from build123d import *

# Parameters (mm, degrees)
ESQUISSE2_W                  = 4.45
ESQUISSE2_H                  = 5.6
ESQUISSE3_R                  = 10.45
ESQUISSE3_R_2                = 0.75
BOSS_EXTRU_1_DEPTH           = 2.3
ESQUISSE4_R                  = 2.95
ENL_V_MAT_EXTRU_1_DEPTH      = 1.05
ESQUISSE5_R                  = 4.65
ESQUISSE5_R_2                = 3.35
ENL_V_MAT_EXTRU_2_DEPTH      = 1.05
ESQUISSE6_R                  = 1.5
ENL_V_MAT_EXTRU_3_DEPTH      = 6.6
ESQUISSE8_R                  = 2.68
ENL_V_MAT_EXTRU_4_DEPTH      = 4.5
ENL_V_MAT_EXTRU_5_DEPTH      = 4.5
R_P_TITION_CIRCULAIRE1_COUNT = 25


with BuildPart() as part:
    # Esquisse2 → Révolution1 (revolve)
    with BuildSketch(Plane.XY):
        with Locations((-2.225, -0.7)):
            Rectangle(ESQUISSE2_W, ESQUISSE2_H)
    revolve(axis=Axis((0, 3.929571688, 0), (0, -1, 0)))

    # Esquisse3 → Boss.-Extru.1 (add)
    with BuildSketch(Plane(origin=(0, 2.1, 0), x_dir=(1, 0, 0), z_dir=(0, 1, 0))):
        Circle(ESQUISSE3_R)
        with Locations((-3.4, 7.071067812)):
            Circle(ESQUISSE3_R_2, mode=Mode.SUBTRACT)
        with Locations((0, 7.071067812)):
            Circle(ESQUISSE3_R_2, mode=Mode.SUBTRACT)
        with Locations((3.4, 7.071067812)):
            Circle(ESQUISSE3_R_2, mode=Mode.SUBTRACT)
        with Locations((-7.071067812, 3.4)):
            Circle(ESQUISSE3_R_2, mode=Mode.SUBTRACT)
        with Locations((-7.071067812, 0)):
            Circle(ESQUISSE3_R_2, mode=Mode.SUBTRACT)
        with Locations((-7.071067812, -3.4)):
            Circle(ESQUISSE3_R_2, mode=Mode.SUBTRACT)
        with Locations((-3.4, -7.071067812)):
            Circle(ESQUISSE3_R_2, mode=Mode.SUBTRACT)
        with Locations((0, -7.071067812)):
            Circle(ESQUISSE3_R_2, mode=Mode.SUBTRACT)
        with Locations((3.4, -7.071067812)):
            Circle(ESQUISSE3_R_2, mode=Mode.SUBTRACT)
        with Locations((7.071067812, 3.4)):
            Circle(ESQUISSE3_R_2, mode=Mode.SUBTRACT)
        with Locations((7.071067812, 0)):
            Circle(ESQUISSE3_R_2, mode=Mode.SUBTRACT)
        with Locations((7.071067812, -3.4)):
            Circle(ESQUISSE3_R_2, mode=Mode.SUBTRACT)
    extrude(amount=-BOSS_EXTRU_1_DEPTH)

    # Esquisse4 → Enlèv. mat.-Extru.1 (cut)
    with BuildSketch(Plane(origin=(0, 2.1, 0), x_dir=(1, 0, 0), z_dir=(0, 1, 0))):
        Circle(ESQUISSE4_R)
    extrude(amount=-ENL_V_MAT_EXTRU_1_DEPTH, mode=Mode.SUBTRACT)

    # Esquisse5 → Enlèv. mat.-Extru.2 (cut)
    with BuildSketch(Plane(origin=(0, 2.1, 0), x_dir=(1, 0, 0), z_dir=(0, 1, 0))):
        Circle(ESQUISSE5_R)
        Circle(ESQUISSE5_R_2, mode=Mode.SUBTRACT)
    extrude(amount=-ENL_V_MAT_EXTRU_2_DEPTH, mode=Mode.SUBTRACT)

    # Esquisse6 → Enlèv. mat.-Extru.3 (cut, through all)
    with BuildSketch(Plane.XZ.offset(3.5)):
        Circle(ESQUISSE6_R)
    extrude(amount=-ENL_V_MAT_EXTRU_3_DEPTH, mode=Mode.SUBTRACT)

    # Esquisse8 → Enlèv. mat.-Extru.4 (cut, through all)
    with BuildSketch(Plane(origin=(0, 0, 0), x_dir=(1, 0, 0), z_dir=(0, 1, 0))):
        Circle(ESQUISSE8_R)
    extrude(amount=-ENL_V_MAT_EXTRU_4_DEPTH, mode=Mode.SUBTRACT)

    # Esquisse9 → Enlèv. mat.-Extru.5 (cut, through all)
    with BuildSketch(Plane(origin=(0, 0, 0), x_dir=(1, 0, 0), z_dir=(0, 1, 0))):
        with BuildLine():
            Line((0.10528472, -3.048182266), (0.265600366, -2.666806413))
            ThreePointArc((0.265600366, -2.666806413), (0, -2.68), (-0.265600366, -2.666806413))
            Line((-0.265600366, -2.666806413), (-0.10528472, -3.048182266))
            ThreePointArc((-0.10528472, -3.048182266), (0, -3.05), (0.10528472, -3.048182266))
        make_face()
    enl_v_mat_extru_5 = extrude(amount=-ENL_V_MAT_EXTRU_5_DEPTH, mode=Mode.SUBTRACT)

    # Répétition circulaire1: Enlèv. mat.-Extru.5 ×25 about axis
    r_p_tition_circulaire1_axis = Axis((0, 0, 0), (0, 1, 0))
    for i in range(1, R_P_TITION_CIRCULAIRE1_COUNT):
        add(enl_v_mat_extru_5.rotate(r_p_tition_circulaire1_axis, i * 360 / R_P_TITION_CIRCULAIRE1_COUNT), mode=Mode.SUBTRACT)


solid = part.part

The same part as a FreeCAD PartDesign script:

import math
import FreeCAD as App
import Part
import Sketcher
Q = App.Units.Quantity

doc = App.newDocument("Part")
body = doc.addObject("PartDesign::Body", "Body")

sketch1 = body.newObject("Sketcher::SketchObject", "Sketch")
sketch1.AttachmentSupport = (doc.getObject("XY_Plane"), [""])
sketch1.MapMode = "FlatFace"
sketch1.addGeometry([
    Part.LineSegment(App.Vector(-4.45, 2.1, 0), App.Vector(-4.45, -3.5, 0)),
    Part.LineSegment(App.Vector(-4.45, -3.5, 0), App.Vector(0, -3.5, 0)),
    Part.LineSegment(App.Vector(0, -3.5, 0), App.Vector(0, 2.1, 0)),
    Part.LineSegment(App.Vector(0, 2.1, 0), App.Vector(-4.45, 2.1, 0)),
], False)
sketch1.addConstraint([
    Sketcher.Constraint("Coincident", 0, 2, 1, 1),
    Sketcher.Constraint("Coincident", 1, 2, 2, 1),
    Sketcher.Constraint("Coincident", 2, 2, 3, 1),
    Sketcher.Constraint("Coincident", 3, 2, 0, 1),
    Sketcher.Constraint("Vertical", 0),
    Sketcher.Constraint("Horizontal", 1),
    Sketcher.Constraint("Vertical", 2),
    Sketcher.Constraint("Horizontal", 3),
    Sketcher.Constraint("PointOnObject", 1, 2, -2),
    Sketcher.Constraint("DistanceY", 0, 2, 0, 1, 5.6),
    Sketcher.Constraint("DistanceX", 1, 1, 1, 2, 4.45),
    Sketcher.Constraint("DistanceY", 0, 2, -1, 1, 3.5),
])
revolution = body.newObject("PartDesign::Revolution", "Revolution")
revolution.Profile = sketch1
revolution.ReferenceAxis = (sketch1, ["V_Axis"])
revolution.Angle = 360

sketch2 = body.newObject("Sketcher::SketchObject", "Sketch001")
sketch2.AttachmentSupport = (doc.getObject("XZ_Plane"), [""])
sketch2.MapMode = "FlatFace"
sketch2.AttachmentOffset = App.Placement(App.Vector(0, 0, -2.1), App.Rotation())
sketch2.addGeometry([
    Part.Circle(App.Vector(0, 0, 0), App.Vector(0, 0, 1), 10.45),
    Part.Circle(App.Vector(-3.4, 7.071068, 0), App.Vector(0, 0, 1), 0.75),
    Part.Circle(App.Vector(-7.071068, 3.4, 0), App.Vector(0, 0, 1), 0.75),
    Part.Circle(App.Vector(0, 7.071068, 0), App.Vector(0, 0, 1), 0.75),
    Part.Circle(App.Vector(3.4, 7.071068, 0), App.Vector(0, 0, 1), 0.75),
    Part.Circle(App.Vector(7.071068, 3.4, 0), App.Vector(0, 0, 1), 0.75),
    Part.Circle(App.Vector(-7.071068, 0, 0), App.Vector(0, 0, 1), 0.75),
    Part.Circle(App.Vector(-7.071068, -3.4, 0), App.Vector(0, 0, 1), 0.75),
    Part.Circle(App.Vector(-3.4, -7.071068, 0), App.Vector(0, 0, 1), 0.75),
    Part.Circle(App.Vector(7.071068, 0, 0), App.Vector(0, 0, 1), 0.75),
    Part.Circle(App.Vector(7.071068, -3.4, 0), App.Vector(0, 0, 1), 0.75),
    Part.Circle(App.Vector(0, -7.071068, 0), App.Vector(0, 0, 1), 0.75),
    Part.Circle(App.Vector(3.4, -7.071068, 0), App.Vector(0, 0, 1), 0.75),
], False)
sketch2.addConstraint([
    Sketcher.Constraint("Coincident", 0, 3, -1, 1),
    Sketcher.Constraint("Equal", 1, 2),
    Sketcher.Constraint("Equal", 2, 3),
    Sketcher.Constraint("Equal", 3, 4),
    Sketcher.Constraint("Equal", 4, 5),
    Sketcher.Constraint("Equal", 5, 6),
    Sketcher.Constraint("Equal", 6, 7),
    Sketcher.Constraint("Equal", 7, 8),
    Sketcher.Constraint("Equal", 8, 9),
    Sketcher.Constraint("Equal", 9, 10),
    Sketcher.Constraint("Equal", 10, 11),
    Sketcher.Constraint("Equal", 11, 12),
    Sketcher.Constraint("Symmetric", 5, 3, 7, 3, -1, 1),
    Sketcher.Constraint("Symmetric", 4, 3, 8, 3, -1, 1),
    Sketcher.Constraint("Symmetric", 6, 3, 9, 3, -1, 1),
    Sketcher.Constraint("Symmetric", 2, 3, 10, 3, -1, 1),
    Sketcher.Constraint("Symmetric", 3, 3, 11, 3, -1, 1),
    Sketcher.Constraint("Symmetric", 1, 3, 12, 3, -1, 1),
    Sketcher.Constraint("Symmetric", 1, 3, 4, 3, -2),
    Sketcher.Constraint("Symmetric", 2, 3, 5, 3, -2),
    Sketcher.Constraint("PointOnObject", 3, 3, -2),
    Sketcher.Constraint("PointOnObject", 6, 3, -1),
    Sketcher.Constraint("Horizontal", 1, 3, 3, 3),
    Sketcher.Constraint("Vertical", 2, 3, 6, 3),
    Sketcher.Constraint("Diameter", 0, 20.9),
    Sketcher.Constraint("Diameter", 1, 1.5),
    Sketcher.Constraint("DistanceX", 1, 3, -1, 1, 3.4),
    Sketcher.Constraint("DistanceY", -1, 1, 2, 3, 3.4),
    Sketcher.Constraint("DistanceY", -1, 1, 1, 3, 7.071068),
    Sketcher.Constraint("DistanceX", 2, 3, -1, 1, 7.071068),
])
pad1 = body.newObject("PartDesign::Pad", "Pad")
pad1.Profile = sketch2
pad1.Length = 2.3

sketch3 = body.newObject("Sketcher::SketchObject", "Sketch002")
sketch3.AttachmentSupport = (doc.getObject("XZ_Plane"), [""])
sketch3.MapMode = "FlatFace"
sketch3.AttachmentOffset = App.Placement(App.Vector(0, 0, -2.1), App.Rotation())
sketch3.addGeometry(Part.Circle(App.Vector(0, 0, 0), App.Vector(0, 0, 1), 2.95), False)
sketch3.addConstraint([
    Sketcher.Constraint("Coincident", 0, 3, -1, 1),
    Sketcher.Constraint("Diameter", 0, 5.9),
])
pocket1 = body.newObject("PartDesign::Pocket", "Pocket")
pocket1.Profile = sketch3
pocket1.Length = 1.05
pocket1.Reversed = True

sketch4 = body.newObject("Sketcher::SketchObject", "Sketch003")
sketch4.AttachmentSupport = (doc.getObject("XZ_Plane"), [""])
sketch4.MapMode = "FlatFace"
sketch4.AttachmentOffset = App.Placement(App.Vector(0, 0, -2.1), App.Rotation())
sketch4.addGeometry([
    Part.Circle(App.Vector(0, 0, 0), App.Vector(0, 0, 1), 4.65),
    Part.Circle(App.Vector(0, 0, 0), App.Vector(0, 0, 1), 3.35),
], False)
sketch4.addConstraint([
    Sketcher.Constraint("Coincident", 0, 3, -1, 1),
    Sketcher.Constraint("Coincident", 1, 3, -1, 1),
    Sketcher.Constraint("Diameter", 0, 9.3),
    Sketcher.Constraint("Diameter", 1, 6.7),
])
pocket2 = body.newObject("PartDesign::Pocket", "Pocket001")
pocket2.Profile = sketch4
pocket2.Length = 1.05
pocket2.Reversed = True

sketch5 = body.newObject("Sketcher::SketchObject", "Sketch004")
sketch5.AttachmentSupport = (doc.getObject("XZ_Plane"), [""])
sketch5.MapMode = "FlatFace"
sketch5.AttachmentOffset = App.Placement(App.Vector(0, 0, 3.5), App.Rotation())
sketch5.addGeometry(Part.Circle(App.Vector(0, 0, 0), App.Vector(0, 0, 1), 1.5), False)
sketch5.addConstraint([
    Sketcher.Constraint("Coincident", 0, 3, -1, 1),
    Sketcher.Constraint("Diameter", 0, 3.0),
])
pocket3 = body.newObject("PartDesign::Pocket", "Pocket002")
pocket3.Profile = sketch5
pocket3.Type = "ThroughAll"

sketch6 = body.newObject("Sketcher::SketchObject", "Sketch005")
sketch6.AttachmentSupport = (doc.getObject("XZ_Plane"), [""])
sketch6.MapMode = "FlatFace"
sketch6.addGeometry(Part.Circle(App.Vector(0, 0, 0), App.Vector(0, 0, 1), 2.68), False)
sketch6.addConstraint([
    Sketcher.Constraint("Coincident", 0, 3, -1, 1),
    Sketcher.Constraint("Diameter", 0, 5.36),
])
pocket4 = body.newObject("PartDesign::Pocket", "Pocket003")
pocket4.Profile = sketch6
pocket4.Type = "ThroughAll"
pocket4.Reversed = True

sketch7 = body.newObject("Sketcher::SketchObject", "Sketch006")
sketch7.AttachmentSupport = (doc.getObject("XZ_Plane"), [""])
sketch7.MapMode = "FlatFace"
sketch7.addGeometry([
    Part.LineSegment(App.Vector(0.105285, 3.048182, 0), App.Vector(0.2656, 2.666806, 0)),
    Part.ArcOfCircle(Part.Circle(App.Vector(0, 0, 0), App.Vector(0, 0, 1), 2.68), math.radians(84.312387), math.radians(95.687613)),
    Part.LineSegment(App.Vector(-0.2656, 2.666806, 0), App.Vector(-0.105285, 3.048182, 0)),
    Part.ArcOfCircle(Part.Circle(App.Vector(0, 0, 0), App.Vector(0, 0, 1), 3.05), math.radians(88.021781), math.radians(91.978219)),
], False)
sketch7.addConstraint([
    Sketcher.Constraint("Coincident", 0, 2, 1, 1),
    Sketcher.Constraint("Coincident", 1, 2, 2, 1),
    Sketcher.Constraint("Coincident", 2, 2, 3, 2),
    Sketcher.Constraint("Coincident", 3, 1, 0, 1),
    Sketcher.Constraint("Coincident", 1, 3, -1, 1),
    Sketcher.Constraint("Coincident", 3, 3, -1, 1),
    Sketcher.Constraint("Horizontal", 0, 2, 1, 2),
    Sketcher.Constraint("Horizontal", 2, 2, 3, 1),
    Sketcher.Constraint("Radius", 1, 2.68),
    Sketcher.Constraint("Radius", 3, 3.05),
    Sketcher.Constraint("Angle", 0, Q("-67.2 deg")),
    Sketcher.Constraint("Distance", 0, 0.413701),
])
pocket5 = body.newObject("PartDesign::Pocket", "Pocket004")
pocket5.Profile = sketch7
pocket5.Type = "ThroughAll"
pocket5.Reversed = True
doc.recompute()

polarpattern = body.newObject("PartDesign::PolarPattern", "PolarPattern")
polarpattern.Originals = [pocket5]
polarpattern.Axis = (doc.getObject("Y_Axis"), [""])
polarpattern.Angle = 360
polarpattern.Occurrences = 25
body.Tip = polarpattern

doc.recompute()
